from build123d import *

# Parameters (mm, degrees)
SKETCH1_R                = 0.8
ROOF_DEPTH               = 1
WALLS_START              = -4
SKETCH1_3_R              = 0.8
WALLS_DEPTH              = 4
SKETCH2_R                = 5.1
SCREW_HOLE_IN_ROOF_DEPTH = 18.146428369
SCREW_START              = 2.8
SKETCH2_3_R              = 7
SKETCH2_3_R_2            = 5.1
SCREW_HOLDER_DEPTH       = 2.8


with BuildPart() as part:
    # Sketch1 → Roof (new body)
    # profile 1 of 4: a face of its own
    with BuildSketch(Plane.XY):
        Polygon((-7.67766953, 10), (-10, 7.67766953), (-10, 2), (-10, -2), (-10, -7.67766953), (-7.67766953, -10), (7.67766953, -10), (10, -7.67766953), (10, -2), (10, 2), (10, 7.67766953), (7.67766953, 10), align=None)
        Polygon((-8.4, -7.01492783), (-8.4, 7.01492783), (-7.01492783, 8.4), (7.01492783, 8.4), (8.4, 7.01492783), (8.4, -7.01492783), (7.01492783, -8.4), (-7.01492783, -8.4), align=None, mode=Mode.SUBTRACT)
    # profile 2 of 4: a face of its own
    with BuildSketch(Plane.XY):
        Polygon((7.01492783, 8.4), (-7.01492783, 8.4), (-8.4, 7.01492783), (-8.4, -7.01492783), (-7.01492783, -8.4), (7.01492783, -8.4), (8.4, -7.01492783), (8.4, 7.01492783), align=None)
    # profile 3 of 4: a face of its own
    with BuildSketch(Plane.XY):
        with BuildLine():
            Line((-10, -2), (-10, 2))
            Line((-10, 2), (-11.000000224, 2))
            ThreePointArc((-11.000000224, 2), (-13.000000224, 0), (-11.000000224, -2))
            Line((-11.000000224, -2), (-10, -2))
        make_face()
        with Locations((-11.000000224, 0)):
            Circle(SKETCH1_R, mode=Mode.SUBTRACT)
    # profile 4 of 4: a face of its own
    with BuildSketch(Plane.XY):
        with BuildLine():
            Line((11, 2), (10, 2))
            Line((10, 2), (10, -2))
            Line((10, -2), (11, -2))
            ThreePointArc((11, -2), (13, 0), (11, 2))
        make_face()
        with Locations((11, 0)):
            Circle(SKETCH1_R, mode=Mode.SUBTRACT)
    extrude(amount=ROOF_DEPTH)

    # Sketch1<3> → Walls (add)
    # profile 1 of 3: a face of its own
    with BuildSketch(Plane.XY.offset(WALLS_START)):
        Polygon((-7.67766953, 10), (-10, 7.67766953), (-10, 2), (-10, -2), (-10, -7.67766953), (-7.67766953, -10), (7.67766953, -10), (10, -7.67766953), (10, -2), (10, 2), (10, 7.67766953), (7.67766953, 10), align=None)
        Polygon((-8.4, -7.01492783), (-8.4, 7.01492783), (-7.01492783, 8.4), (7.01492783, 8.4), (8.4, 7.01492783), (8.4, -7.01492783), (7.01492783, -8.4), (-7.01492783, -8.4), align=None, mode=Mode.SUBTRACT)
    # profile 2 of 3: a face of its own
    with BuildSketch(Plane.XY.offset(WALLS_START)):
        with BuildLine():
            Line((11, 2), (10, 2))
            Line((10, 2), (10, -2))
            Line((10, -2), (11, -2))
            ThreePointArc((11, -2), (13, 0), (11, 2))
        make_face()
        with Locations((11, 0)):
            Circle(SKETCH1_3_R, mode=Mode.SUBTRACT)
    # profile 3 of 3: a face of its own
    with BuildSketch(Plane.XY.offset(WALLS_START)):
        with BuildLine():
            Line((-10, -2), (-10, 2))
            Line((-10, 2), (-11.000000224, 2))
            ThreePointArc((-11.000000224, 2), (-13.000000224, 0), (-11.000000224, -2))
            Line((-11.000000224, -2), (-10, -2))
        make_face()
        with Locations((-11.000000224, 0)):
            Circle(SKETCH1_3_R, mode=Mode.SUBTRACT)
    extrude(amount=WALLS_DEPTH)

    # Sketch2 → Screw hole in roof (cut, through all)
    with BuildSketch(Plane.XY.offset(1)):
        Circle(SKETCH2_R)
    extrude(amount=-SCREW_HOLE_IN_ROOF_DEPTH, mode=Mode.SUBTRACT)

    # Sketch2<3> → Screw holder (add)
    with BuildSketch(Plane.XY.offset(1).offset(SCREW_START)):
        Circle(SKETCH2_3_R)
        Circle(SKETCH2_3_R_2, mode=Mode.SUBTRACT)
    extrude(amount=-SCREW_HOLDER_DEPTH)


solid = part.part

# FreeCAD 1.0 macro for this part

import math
import FreeCAD as App
import Part
import Sketcher

V = App.Vector

doc = App.newDocument("Part")
body = doc.addObject("PartDesign::Body", "Body")

sketch1 = doc.addObject("Sketcher::SketchObject", "Sketch")
body.addObject(sketch1)
sketch1.AttachmentSupport = (doc.XY_Plane, [""])
sketch1.MapMode = "FlatFace"
sketch1.addGeometry(Part.LineSegment(V(-7.7, 10, 0), V(-10, 7.7, 0)), False)
sketch1.addGeometry(Part.LineSegment(V(-10, 7.7, 0), V(-10, 2, 0)), False)
sketch1.addGeometry(Part.LineSegment(V(-10, 2, 0), V(-11, 2, 0)), False)
sketch1.addGeometry(Part.ArcOfCircle(Part.Circle(V(-11, 0, 0), V(0, 0, 1), 2), math.radians(90), math.radians(270)), False)
sketch1.addGeometry(Part.LineSegment(V(-11, -2, 0), V(-10, -2, 0)), False)
sketch1.addGeometry(Part.LineSegment(V(-10, -2, 0), V(-10, -7.7, 0)), False)
sketch1.addGeometry(Part.LineSegment(V(-10, -7.7, 0), V(-7.7, -10, 0)), False)
sketch1.addGeometry(Part.LineSegment(V(-7.7, -10, 0), V(7.7, -10, 0)), False)
sketch1.addGeometry(Part.LineSegment(V(7.7, -10, 0), V(10, -7.7, 0)), False)
sketch1.addGeometry(Part.LineSegment(V(10, -7.7, 0), V(10, -2, 0)), False)
sketch1.addGeometry(Part.LineSegment(V(10, -2, 0), V(11, -2, 0)), False)
sketch1.addGeometry(Part.ArcOfCircle(Part.Circle(V(11, 0, 0), V(0, 0, 1), 2), math.radians(-90), math.radians(90)), False)
sketch1.addGeometry(Part.LineSegment(V(11, 2, 0), V(10, 2, 0)), False)
sketch1.addGeometry(Part.LineSegment(V(10, 2, 0), V(10, 7.7, 0)), False)
sketch1.addGeometry(Part.LineSegment(V(10, 7.7, 0), V(7.7, 10, 0)), False)
sketch1.addGeometry(Part.LineSegment(V(7.7, 10, 0), V(-7.7, 10, 0)), False)
sketch1.addGeometry(Part.Circle(V(-11, 0, 0), V(0, 0, 1), 0.8), False)
sketch1.addGeometry(Part.Circle(V(11, 0, 0), V(0, 0, 1), 0.8), False)
sketch1.addConstraint(Sketcher.Constraint("Coincident", 0, 2, 1, 1))
sketch1.addConstraint(Sketcher.Constraint("Coincident", 1, 2, 2, 1))
sketch1.addConstraint(Sketcher.Constraint("Tangent", 2, 2, 3, 1))
sketch1.addConstraint(Sketcher.Constraint("Tangent", 3, 2, 4, 1))
sketch1.addConstraint(Sketcher.Constraint("Coincident", 4, 2, 5, 1))
sketch1.addConstraint(Sketcher.Constraint("Coincident", 5, 2, 6, 1))
sketch1.addConstraint(Sketcher.Constraint("Coincident", 6, 2, 7, 1))
sketch1.addConstraint(Sketcher.Constraint("Coincident", 7, 2, 8, 1))
sketch1.addConstraint(Sketcher.Constraint("Coincident", 8, 2, 9, 1))
sketch1.addConstraint(Sketcher.Constraint("Coincident", 9, 2, 10, 1))
sketch1.addConstraint(Sketcher.Constraint("Tangent", 10, 2, 11, 1))
sketch1.addConstraint(Sketcher.Constraint("Tangent", 11, 2, 12, 1))
sketch1.addConstraint(Sketcher.Constraint("Coincident", 12, 2, 13, 1))
sketch1.addConstraint(Sketcher.Constraint("Coincident", 13, 2, 14, 1))
sketch1.addConstraint(Sketcher.Constraint("Coincident", 14, 2, 15, 1))
sketch1.addConstraint(Sketcher.Constraint("Coincident", 15, 2, 0, 1))
sketch1.addConstraint(Sketcher.Constraint("Vertical", 1))
sketch1.addConstraint(Sketcher.Constraint("Horizontal", 2))
sketch1.addConstraint(Sketcher.Constraint("Horizontal", 4))
sketch1.addConstraint(Sketcher.Constraint("Vertical", 5))
sketch1.addConstraint(Sketcher.Constraint("Horizontal", 7))
sketch1.addConstraint(Sketcher.Constraint("Vertical", 9))
sketch1.addConstraint(Sketcher.Constraint("Horizontal", 10))
sketch1.addConstraint(Sketcher.Constraint("Horizontal", 12))
sketch1.addConstraint(Sketcher.Constraint("Vertical", 13))
sketch1.addConstraint(Sketcher.Constraint("Horizontal", 15))
sketch1.addConstraint(Sketcher.Constraint("Coincident", 16, 3, 3, 3))
sketch1.addConstraint(Sketcher.Constraint("Coincident", 17, 3, 11, 3))
sketch1.addConstraint(Sketcher.Constraint("Equal", 3, 11))
sketch1.addConstraint(Sketcher.Constraint("Equal", 16, 17))
sketch1.addConstraint(Sketcher.Constraint("Symmetric", 3, 3, 11, 3, -1, 1))
sketch1.addConstraint(Sketcher.Constraint("Symmetric", 0, 2, 8, 2, -1, 1))
sketch1.addConstraint(Sketcher.Constraint("Symmetric", 5, 2, 13, 2, -1, 1))
sketch1.addConstraint(Sketcher.Constraint("Symmetric", 6, 2, 14, 2, -1, 1))
sketch1.addConstraint(Sketcher.Constraint("Symmetric", 5, 2, 8, 2, -2))
sketch1.addConstraint(Sketcher.Constraint("PointOnObject", 3, 3, -1))
sketch1.addConstraint(Sketcher.Constraint("Perpendicular", 0, 6))
sketch1.addConstraint(Sketcher.Constraint("Perpendicular", 6, 8))
sketch1.addConstraint(Sketcher.Constraint("Vertical", 7, 2, 14, 2))
sketch1.addConstraint(Sketcher.Constraint("Radius", 3, 2.0))
sketch1.addConstraint(Sketcher.Constraint("Diameter", 16, 1.6))
sketch1.addConstraint(Sketcher.Constraint("DistanceX", 2, 2, 2, 1, 1.0))
sketch1.addConstraint(Sketcher.Constraint("DistanceX", 3, 3, -1, 1, 11.0))
sketch1.addConstraint(Sketcher.Constraint("DistanceY", 6, 2, -1, 1, 10.0))
sketch1.addConstraint(Sketcher.Constraint("DistanceX", 7, 1, 7, 2, 15.355339))
pad1 = doc.addObject("PartDesign::Pad", "Pad")
body.addObject(pad1)
pad1.Profile = sketch1
pad1.Length = 1

sketch2 = doc.addObject("Sketcher::SketchObject", "Sketch001")
body.addObject(sketch2)
sketch2.AttachmentSupport = (doc.XY_Plane, [""])
sketch2.MapMode = "FlatFace"
sketch2.AttachmentOffset = App.Placement(V(0, 0, -4), App.Rotation())
sketch2.addGeometry(Part.LineSegment(V(-7.7, 10, 0), V(-10, 7.7, 0)), False)
sketch2.addGeometry(Part.LineSegment(V(-10, 7.7, 0), V(-10, 2, 0)), False)
sketch2.addGeometry(Part.LineSegment(V(-10, 2, 0), V(-11, 2, 0)), False)
sketch2.addGeometry(Part.ArcOfCircle(Part.Circle(V(-11, 0, 0), V(0, 0, 1), 2), math.radians(90), math.radians(270)), False)
sketch2.addGeometry(Part.LineSegment(V(-11, -2, 0), V(-10, -2, 0)), False)
sketch2.addGeometry(Part.LineSegment(V(-10, -2, 0), V(-10, -7.7, 0)), False)
sketch2.addGeometry(Part.LineSegment(V(-10, -7.7, 0), V(-7.7, -10, 0)), False)
sketch2.addGeometry(Part.LineSegment(V(-7.7, -10, 0), V(7.7, -10, 0)), False)
sketch2.addGeometry(Part.LineSegment(V(7.7, -10, 0), V(10, -7.7, 0)), False)
sketch2.addGeometry(Part.LineSegment(V(10, -7.7, 0), V(10, -2, 0)), False)
sketch2.addGeometry(Part.LineSegment(V(10, -2, 0), V(11, -2, 0)), False)
sketch2.addGeometry(Part.ArcOfCircle(Part.Circle(V(11, 0, 0), V(0, 0, 1), 2), math.radians(-90), math.radians(90)), False)
sketch2.addGeometry(Part.LineSegment(V(11, 2, 0), V(10, 2, 0)), False)
sketch2.addGeometry(Part.LineSegment(V(10, 2, 0), V(10, 7.7, 0)), False)
sketch2.addGeometry(Part.LineSegment(V(10, 7.7, 0), V(7.7, 10, 0)), False)
sketch2.addGeometry(Part.LineSegment(V(7.7, 10, 0), V(-7.7, 10, 0)), False)
sketch2.addGeometry(Part.LineSegment(V(-7, -8.4, 0), V(-8.4, -7, 0)), False)
sketch2.addGeometry(Part.LineSegment(V(-8.4, -7, 0), V(-8.4, 7, 0)), False)
sketch2.addGeometry(Part.LineSegment(V(-8.4, 7, 0), V(-7, 8.4, 0)), False)
sketch2.addGeometry(Part.LineSegment(V(-7, 8.4, 0), V(7, 8.4, 0)), False)
sketch2.addGeometry(Part.LineSegment(V(7, 8.4, 0), V(8.4, 7, 0)), False)
sketch2.addGeometry(Part.LineSegment(V(8.4, 7, 0), V(8.4, -7, 0)), False)
sketch2.addGeometry(Part.LineSegment(V(8.4, -7, 0), V(7, -8.4, 0)), False)
sketch2.addGeometry(Part.LineSegment(V(7, -8.4, 0), V(-7, -8.4, 0)), False)
sketch2.addGeometry(Part.Circle(V(-11, 0, 0), V(0, 0, 1), 0.8), False)
sketch2.addGeometry(Part.Circle(V(11, 0, 0), V(0, 0, 1), 0.8), False)
sketch2.addConstraint(Sketcher.Constraint("Coincident", 0, 2, 1, 1))
sketch2.addConstraint(Sketcher.Constraint("Coincident", 1, 2, 2, 1))
sketch2.addConstraint(Sketcher.Constraint("Tangent", 2, 2, 3, 1))
sketch2.addConstraint(Sketcher.Constraint("Tangent", 3, 2, 4, 1))
sketch2.addConstraint(Sketcher.Constraint("Coincident", 4, 2, 5, 1))
sketch2.addConstraint(Sketcher.Constraint("Coincident", 5, 2, 6, 1))
sketch2.addConstraint(Sketcher.Constraint("Coincident", 6, 2, 7, 1))
sketch2.addConstraint(Sketcher.Constraint("Coincident", 7, 2, 8, 1))
sketch2.addConstraint(Sketcher.Constraint("Coincident", 8, 2, 9, 1))
sketch2.addConstraint(Sketcher.Constraint("Coincident", 9, 2, 10, 1))
sketch2.addConstraint(Sketcher.Constraint("Tangent", 10, 2, 11, 1))
sketch2.addConstraint(Sketcher.Constraint("Tangent", 11, 2, 12, 1))
sketch2.addConstraint(Sketcher.Constraint("Coincident", 12, 2, 13, 1))
sketch2.addConstraint(Sketcher.Constraint("Coincident", 13, 2, 14, 1))
sketch2.addConstraint(Sketcher.Constraint("Coincident", 14, 2, 15, 1))
sketch2.addConstraint(Sketcher.Constraint("Coincident", 15, 2, 0, 1))
sketch2.addConstraint(Sketcher.Constraint("Coincident", 16, 2, 17, 1))
sketch2.addConstraint(Sketcher.Constraint("Coincident", 17, 2, 18, 1))
sketch2.addConstraint(Sketcher.Constraint("Coincident", 18, 2, 19, 1))
sketch2.addConstraint(Sketcher.Constraint("Coincident", 19, 2, 20, 1))
sketch2.addConstraint(Sketcher.Constraint("Coincident", 20, 2, 21, 1))
sketch2.addConstraint(Sketcher.Constraint("Coincident", 21, 2, 22, 1))
sketch2.addConstraint(Sketcher.Constraint("Coincident", 22, 2, 23, 1))
sketch2.addConstraint(Sketcher.Constraint("Coincident", 23, 2, 16, 1))
sketch2.addConstraint(Sketcher.Constraint("Vertical", 1))
sketch2.addConstraint(Sketcher.Constraint("Horizontal", 2))
sketch2.addConstraint(Sketcher.Constraint("Horizontal", 4))
sketch2.addConstraint(Sketcher.Constraint("Vertical", 5))
sketch2.addConstraint(Sketcher.Constraint("Horizontal", 7))
sketch2.addConstraint(Sketcher.Constraint("Vertical", 9))
sketch2.addConstraint(Sketcher.Constraint("Horizontal", 10))
sketch2.addConstraint(Sketcher.Constraint("Horizontal", 12))
sketch2.addConstraint(Sketcher.Constraint("Vertical", 13))
sketch2.addConstraint(Sketcher.Constraint("Horizontal", 15))
sketch2.addConstraint(Sketcher.Constraint("Vertical", 17))
sketch2.addConstraint(Sketcher.Constraint("Horizontal", 19))
sketch2.addConstraint(Sketcher.Constraint("Vertical", 21))
sketch2.addConstraint(Sketcher.Constraint("Horizontal", 23))
sketch2.addConstraint(Sketcher.Constraint("Coincident", 24, 3, 3, 3))
sketch2.addConstraint(Sketcher.Constraint("Coincident", 25, 3, 11, 3))
sketch2.addConstraint(Sketcher.Constraint("Equal", 3, 11))
sketch2.addConstraint(Sketcher.Constraint("Equal", 24, 25))
sketch2.addConstraint(Sketcher.Constraint("Symmetric", 3, 3, 11, 3, -1, 1))
sketch2.addConstraint(Sketcher.Constraint("Symmetric", 0, 2, 8, 2, -1, 1))
sketch2.addConstraint(Sketcher.Constraint("Symmetric", 5, 2, 13, 2, -1, 1))
sketch2.addConstraint(Sketcher.Constraint("Symmetric", 6, 2, 14, 2, -1, 1))
sketch2.addConstraint(Sketcher.Constraint("Symmetric", 16, 2, 20, 2, -1, 1))
sketch2.addConstraint(Sketcher.Constraint("Symmetric", 18, 2, 22, 2, -1, 1))
sketch2.addConstraint(Sketcher.Constraint("Symmetric", 5, 2, 8, 2, -2))
sketch2.addConstraint(Sketcher.Constraint("PointOnObject", 3, 3, -1))
sketch2.addConstraint(Sketcher.Constraint("Perpendicular", 0, 6))
sketch2.addConstraint(Sketcher.Constraint("Perpendicular", 6, 8))
sketch2.addConstraint(Sketcher.Constraint("Parallel", 14, 16))
sketch2.addConstraint(Sketcher.Constraint("Perpendicular", 16, 18))
sketch2.addConstraint(Sketcher.Constraint("Perpendicular", 18, 20))
sketch2.addConstraint(Sketcher.Constraint("Perpendicular", 20, 22))
sketch2.addConstraint(Sketcher.Constraint("Horizontal", 17, 2, 20, 2))
sketch2.addConstraint(Sketcher.Constraint("Vertical", 7, 2, 14, 2))
sketch2.addConstraint(Sketcher.Constraint("Equal", 23, 17))
sketch2.addConstraint(Sketcher.Constraint("Radius", 3, 2.0))
sketch2.addConstraint(Sketcher.Constraint("Diameter", 24, 1.6))
sketch2.addConstraint(Sketcher.Constraint("DistanceX", 2, 2, 2, 1, 1.0))
sketch2.addConstraint(Sketcher.Constraint("DistanceX", 3, 3, -1, 1, 11.0))
sketch2.addConstraint(Sketcher.Constraint("DistanceY", 6, 2, -1, 1, 10.0))
sketch2.addConstraint(Sketcher.Constraint("DistanceX", 16, 2, -1, 1, 8.4))
sketch2.addConstraint(Sketcher.Constraint("DistanceX", 7, 1, 7, 2, 15.355339))
sketch2.addConstraint(Sketcher.Constraint("DistanceX", 19, 1, 19, 2, 14.029856))
pad2 = doc.addObject("PartDesign::Pad", "Pad001")
body.addObject(pad2)
pad2.Profile = sketch2
pad2.Length = 4

sketch3 = doc.addObject("Sketcher::SketchObject", "Sketch002")
body.addObject(sketch3)
sketch3.AttachmentSupport = (doc.XY_Plane, [""])
sketch3.MapMode = "FlatFace"
sketch3.AttachmentOffset = App.Placement(V(0, 0, 1), App.Rotation())
sketch3.addGeometry(Part.Circle(V(0, 0, 0), V(0, 0, 1), 5), False)
sketch3.addConstraint(Sketcher.Constraint("Coincident", 0, 3, -1, 1))
sketch3.addConstraint(Sketcher.Constraint("Diameter", 0, 10.2))
pocket1 = doc.addObject("PartDesign::Pocket", "Pocket")
body.addObject(pocket1)
pocket1.Profile = sketch3
pocket1.Type = "ThroughAll"

sketch4 = doc.addObject("Sketcher::SketchObject", "Sketch003")
body.addObject(sketch4)
sketch4.AttachmentSupport = (doc.XY_Plane, [""])
sketch4.MapMode = "FlatFace"
sketch4.AttachmentOffset = App.Placement(V(0, 0, 3.8), App.Rotation())
sketch4.addGeometry(Part.Circle(V(0, 0, 0), V(0, 0, 1), 7), False)
sketch4.addGeometry(Part.Circle(V(0, 0, 0), V(0, 0, 1), 5), False)
sketch4.addConstraint(Sketcher.Constraint("Coincident", 0, 3, -1, 1))
sketch4.addConstraint(Sketcher.Constraint("Coincident", 1, 3, -1, 1))
sketch4.addConstraint(Sketcher.Constraint("Diameter", 0, 14.0))
sketch4.addConstraint(Sketcher.Constraint("Diameter", 1, 10.2))
pad3 = doc.addObject("PartDesign::Pad", "Pad002")
body.addObject(pad3)
pad3.Profile = sketch4
pad3.Length = 2.8
pad3.Reversed = True

doc.recompute()
